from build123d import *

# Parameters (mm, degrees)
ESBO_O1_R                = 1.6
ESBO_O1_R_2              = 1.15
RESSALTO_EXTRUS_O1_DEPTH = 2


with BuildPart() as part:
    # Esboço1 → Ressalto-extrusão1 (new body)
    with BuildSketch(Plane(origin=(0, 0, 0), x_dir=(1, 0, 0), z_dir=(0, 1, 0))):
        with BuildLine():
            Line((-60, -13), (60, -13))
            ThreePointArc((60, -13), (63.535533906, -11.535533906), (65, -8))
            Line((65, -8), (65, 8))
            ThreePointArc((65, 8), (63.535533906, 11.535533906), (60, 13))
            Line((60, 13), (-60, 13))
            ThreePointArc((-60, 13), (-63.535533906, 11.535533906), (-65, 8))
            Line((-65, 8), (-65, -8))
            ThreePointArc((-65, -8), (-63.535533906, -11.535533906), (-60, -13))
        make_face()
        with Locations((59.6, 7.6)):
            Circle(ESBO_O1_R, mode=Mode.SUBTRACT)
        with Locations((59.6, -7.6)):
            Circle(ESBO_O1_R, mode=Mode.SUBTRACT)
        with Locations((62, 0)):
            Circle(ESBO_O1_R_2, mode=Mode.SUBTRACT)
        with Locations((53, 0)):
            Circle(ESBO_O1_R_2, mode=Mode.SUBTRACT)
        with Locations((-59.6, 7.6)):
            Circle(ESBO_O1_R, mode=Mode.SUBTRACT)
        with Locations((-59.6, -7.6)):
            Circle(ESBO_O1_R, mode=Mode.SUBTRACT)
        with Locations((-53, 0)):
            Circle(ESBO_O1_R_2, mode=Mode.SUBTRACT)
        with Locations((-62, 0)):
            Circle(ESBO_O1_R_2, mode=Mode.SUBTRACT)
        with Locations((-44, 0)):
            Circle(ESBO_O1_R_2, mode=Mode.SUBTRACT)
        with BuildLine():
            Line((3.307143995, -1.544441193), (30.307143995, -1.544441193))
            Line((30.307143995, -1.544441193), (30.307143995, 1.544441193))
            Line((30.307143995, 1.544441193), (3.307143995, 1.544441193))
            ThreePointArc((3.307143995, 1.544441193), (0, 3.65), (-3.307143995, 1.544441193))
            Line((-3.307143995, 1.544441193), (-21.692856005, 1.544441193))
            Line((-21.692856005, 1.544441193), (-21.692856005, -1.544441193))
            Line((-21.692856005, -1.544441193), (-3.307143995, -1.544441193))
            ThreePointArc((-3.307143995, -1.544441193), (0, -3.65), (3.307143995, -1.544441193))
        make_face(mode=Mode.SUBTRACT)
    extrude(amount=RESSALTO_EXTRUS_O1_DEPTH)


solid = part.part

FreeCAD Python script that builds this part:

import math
import FreeCAD as App
import Part
import Sketcher
Q = App.Units.Quantity

doc = App.newDocument("Part")
body = doc.addObject("PartDesign::Body", "Body")

sketch1 = body.newObject("Sketcher::SketchObject", "Sketch")
sketch1.AttachmentSupport = (doc.getObject("XZ_Plane"), [""])
sketch1.MapMode = "FlatFace"
sketch1.addGeometry([
    Part.LineSegment(App.Vector(-60, 13, 0), App.Vector(60, 13, 0)),
    Part.ArcOfCircle(Part.Circle(App.Vector(60, 8, 0), App.Vector(0, 0, 1), 5), math.radians(0), math.radians(90)),
    Part.LineSegment(App.Vector(65, 8, 0), App.Vector(65, -8, 0)),
    Part.ArcOfCircle(Part.Circle(App.Vector(60, -8, 0), App.Vector(0, 0, 1), 5), math.radians(-90), math.radians(0)),
    Part.LineSegment(App.Vector(60, -13, 0), App.Vector(-60, -13, 0)),
    Part.ArcOfCircle(Part.Circle(App.Vector(-60, -8, 0), App.Vector(0, 0, 1), 5), math.radians(180), math.radians(270)),
    Part.LineSegment(App.Vector(-65, -8, 0), App.Vector(-65, 8, 0)),
    Part.ArcOfCircle(Part.Circle(App.Vector(-60, 8, 0), App.Vector(0, 0, 1), 5), math.radians(90), math.radians(180)),
    Part.Circle(App.Vector(-59.6, 7.6, 0), App.Vector(0, 0, 1), 1.6),
    Part.Circle(App.Vector(59.6, 7.6, 0), App.Vector(0, 0, 1), 1.6),
    Part.Circle(App.Vector(-62, 0, 0), App.Vector(0, 0, 1), 1.15),
    Part.Circle(App.Vector(-53, 0, 0), App.Vector(0, 0, 1), 1.15),
    Part.Circle(App.Vector(-44, 0, 0), App.Vector(0, 0, 1), 1.15),
    Part.Circle(App.Vector(-59.6, -7.6, 0), App.Vector(0, 0, 1), 1.6),
    Part.LineSegment(App.Vector(30.307144, 1.544441, 0), App.Vector(3.307144, 1.544441, 0)),
    Part.ArcOfCircle(Part.Circle(App.Vector(0, 0, 0), App.Vector(0, 0, 1), 3.65), math.radians(25.032645), math.radians(154.967355)),
    Part.LineSegment(App.Vector(-3.307144, 1.544441, 0), App.Vector(-21.692856, 1.544441, 0)),
    Part.LineSegment(App.Vector(-21.692856, 1.544441, 0), App.Vector(-21.692856, -1.544441, 0)),
    Part.LineSegment(App.Vector(-21.692856, -1.544441, 0), App.Vector(-3.307144, -1.544441, 0)),
    Part.ArcOfCircle(Part.Circle(App.Vector(0, 0, 0), App.Vector(0, 0, 1), 3.65), math.radians(-154.967355), math.radians(-25.032645)),
    Part.LineSegment(App.Vector(3.307144, -1.544441, 0), App.Vector(30.307144, -1.544441, 0)),
    Part.LineSegment(App.Vector(30.307144, -1.544441, 0), App.Vector(30.307144, 1.544441, 0)),
    Part.Circle(App.Vector(53, 0, 0), App.Vector(0, 0, 1), 1.15),
    Part.Circle(App.Vector(62, 0, 0), App.Vector(0, 0, 1), 1.15),
    Part.Circle(App.Vector(59.6, -7.6, 0), App.Vector(0, 0, 1), 1.6),
], False)
sketch1.addConstraint([
    Sketcher.Constraint("Tangent", 0, 2, 1, 2),
    Sketcher.Constraint("Tangent", 1, 1, 2, 1),
    Sketcher.Constraint("Tangent", 2, 2, 3, 2),
    Sketcher.Constraint("Tangent", 3, 1, 4, 1),
    Sketcher.Constraint("Tangent", 4, 2, 5, 2),
    Sketcher.Constraint("Tangent", 5, 1, 6, 1),
    Sketcher.Constraint("Tangent", 6, 2, 7, 2),
    Sketcher.Constraint("Tangent", 7, 1, 0, 1),
    Sketcher.Constraint("Coincident", 14, 2, 15, 1),
    Sketcher.Constraint("Coincident", 15, 2, 16, 1),
    Sketcher.Constraint("Coincident", 16, 2, 17, 1),
    Sketcher.Constraint("Coincident", 17, 2, 18, 1),
    Sketcher.Constraint("Coincident", 18, 2, 19, 1),
    Sketcher.Constraint("Coincident", 19, 2, 20, 1),
    Sketcher.Constraint("Coincident", 20, 2, 21, 1),
    Sketcher.Constraint("Coincident", 21, 2, 14, 1),
    Sketcher.Constraint("Horizontal", 0),
    Sketcher.Constraint("Vertical", 2),
    Sketcher.Constraint("Horizontal", 4),
    Sketcher.Constraint("Vertical", 6),
    Sketcher.Constraint("Horizontal", 14),
    Sketcher.Constraint("Horizontal", 16),
    Sketcher.Constraint("Vertical", 17),
    Sketcher.Constraint("Horizontal", 18),
    Sketcher.Constraint("Horizontal", 20),
    Sketcher.Constraint("Vertical", 21),
    Sketcher.Constraint("Coincident", 15, 3, -1, 1),
    Sketcher.Constraint("Coincident", 19, 3, -1, 1),
    Sketcher.Constraint("Equal", 1, 3),
    Sketcher.Constraint("Equal", 3, 5),
    Sketcher.Constraint("Equal", 5, 7),
    Sketcher.Constraint("Equal", 8, 9),
    Sketcher.Constraint("Equal", 10, 11),
    Sketcher.Constraint("Equal", 11, 12),
    Sketcher.Constraint("Equal", 9, 13),
    Sketcher.Constraint("Equal", 15, 19),
    Sketcher.Constraint("Equal", 12, 22),
    Sketcher.Constraint("Equal", 22, 23),
    Sketcher.Constraint("Equal", 13, 24),
    Sketcher.Constraint("Symmetric", 1, 3, 5, 3, -1, 1),
    Sketcher.Constraint("Symmetric", 9, 3, 13, 3, -1, 1),
    Sketcher.Constraint("Symmetric", 11, 3, 22, 3, -1, 1),
    Sketcher.Constraint("Symmetric", 10, 3, 23, 3, -1, 1),
    Sketcher.Constraint("Symmetric", 8, 3, 24, 3, -1, 1),
    Sketcher.Constraint("Symmetric", 8, 3, 9, 3, -2),
    Sketcher.Constraint("PointOnObject", 10, 3, -1),
    Sketcher.Constraint("PointOnObject", 11, 3, -1),
    Sketcher.Constraint("PointOnObject", 12, 3, -1),
    Sketcher.Constraint("Horizontal", 14, 2, 15, 2),
    Sketcher.Constraint("Horizontal", 18, 2, 19, 2),
    Sketcher.Constraint("Vertical", 15, 2, 18, 2),
    Sketcher.Constraint("Radius", 1, Q("5 mm")),
    Sketcher.Constraint("Diameter", 8, Q("3.2 mm")),
    Sketcher.Constraint("Diameter", 10, Q("2.3 mm")),
    Sketcher.Constraint("DistanceX", 0, 1, 0, 2, Q("120 mm")),
    Sketcher.Constraint("DistanceX", 14, 2, 14, 1, Q("27 mm")),
    Sketcher.Constraint("DistanceY", 2, 2, 2, 1, Q("16 mm")),
    Sketcher.Constraint("Radius", 15, Q("3.65 mm")),
    Sketcher.Constraint("DistanceX", 10, 3, -1, 1, Q("62 mm")),
    Sketcher.Constraint("DistanceX", 11, 3, -1, 1, Q("53 mm")),
    Sketcher.Constraint("DistanceX", 12, 3, -1, 1, Q("44 mm")),
    Sketcher.Constraint("DistanceX", 16, 2, 14, 2, Q("25 mm")),
    Sketcher.Constraint("DistanceX", 8, 3, -1, 1, Q("59.6 mm")),
    Sketcher.Constraint("DistanceY", -1, 1, 8, 3, Q("7.6 mm")),
    Sketcher.Constraint("DistanceX", 16, 2, 16, 1, Q("18.385712 mm")),
])
pad1 = body.newObject("PartDesign::Pad", "Pad")
pad1.Profile = sketch1
pad1.Length = 2
pad1.Reversed = True

doc.recompute()
